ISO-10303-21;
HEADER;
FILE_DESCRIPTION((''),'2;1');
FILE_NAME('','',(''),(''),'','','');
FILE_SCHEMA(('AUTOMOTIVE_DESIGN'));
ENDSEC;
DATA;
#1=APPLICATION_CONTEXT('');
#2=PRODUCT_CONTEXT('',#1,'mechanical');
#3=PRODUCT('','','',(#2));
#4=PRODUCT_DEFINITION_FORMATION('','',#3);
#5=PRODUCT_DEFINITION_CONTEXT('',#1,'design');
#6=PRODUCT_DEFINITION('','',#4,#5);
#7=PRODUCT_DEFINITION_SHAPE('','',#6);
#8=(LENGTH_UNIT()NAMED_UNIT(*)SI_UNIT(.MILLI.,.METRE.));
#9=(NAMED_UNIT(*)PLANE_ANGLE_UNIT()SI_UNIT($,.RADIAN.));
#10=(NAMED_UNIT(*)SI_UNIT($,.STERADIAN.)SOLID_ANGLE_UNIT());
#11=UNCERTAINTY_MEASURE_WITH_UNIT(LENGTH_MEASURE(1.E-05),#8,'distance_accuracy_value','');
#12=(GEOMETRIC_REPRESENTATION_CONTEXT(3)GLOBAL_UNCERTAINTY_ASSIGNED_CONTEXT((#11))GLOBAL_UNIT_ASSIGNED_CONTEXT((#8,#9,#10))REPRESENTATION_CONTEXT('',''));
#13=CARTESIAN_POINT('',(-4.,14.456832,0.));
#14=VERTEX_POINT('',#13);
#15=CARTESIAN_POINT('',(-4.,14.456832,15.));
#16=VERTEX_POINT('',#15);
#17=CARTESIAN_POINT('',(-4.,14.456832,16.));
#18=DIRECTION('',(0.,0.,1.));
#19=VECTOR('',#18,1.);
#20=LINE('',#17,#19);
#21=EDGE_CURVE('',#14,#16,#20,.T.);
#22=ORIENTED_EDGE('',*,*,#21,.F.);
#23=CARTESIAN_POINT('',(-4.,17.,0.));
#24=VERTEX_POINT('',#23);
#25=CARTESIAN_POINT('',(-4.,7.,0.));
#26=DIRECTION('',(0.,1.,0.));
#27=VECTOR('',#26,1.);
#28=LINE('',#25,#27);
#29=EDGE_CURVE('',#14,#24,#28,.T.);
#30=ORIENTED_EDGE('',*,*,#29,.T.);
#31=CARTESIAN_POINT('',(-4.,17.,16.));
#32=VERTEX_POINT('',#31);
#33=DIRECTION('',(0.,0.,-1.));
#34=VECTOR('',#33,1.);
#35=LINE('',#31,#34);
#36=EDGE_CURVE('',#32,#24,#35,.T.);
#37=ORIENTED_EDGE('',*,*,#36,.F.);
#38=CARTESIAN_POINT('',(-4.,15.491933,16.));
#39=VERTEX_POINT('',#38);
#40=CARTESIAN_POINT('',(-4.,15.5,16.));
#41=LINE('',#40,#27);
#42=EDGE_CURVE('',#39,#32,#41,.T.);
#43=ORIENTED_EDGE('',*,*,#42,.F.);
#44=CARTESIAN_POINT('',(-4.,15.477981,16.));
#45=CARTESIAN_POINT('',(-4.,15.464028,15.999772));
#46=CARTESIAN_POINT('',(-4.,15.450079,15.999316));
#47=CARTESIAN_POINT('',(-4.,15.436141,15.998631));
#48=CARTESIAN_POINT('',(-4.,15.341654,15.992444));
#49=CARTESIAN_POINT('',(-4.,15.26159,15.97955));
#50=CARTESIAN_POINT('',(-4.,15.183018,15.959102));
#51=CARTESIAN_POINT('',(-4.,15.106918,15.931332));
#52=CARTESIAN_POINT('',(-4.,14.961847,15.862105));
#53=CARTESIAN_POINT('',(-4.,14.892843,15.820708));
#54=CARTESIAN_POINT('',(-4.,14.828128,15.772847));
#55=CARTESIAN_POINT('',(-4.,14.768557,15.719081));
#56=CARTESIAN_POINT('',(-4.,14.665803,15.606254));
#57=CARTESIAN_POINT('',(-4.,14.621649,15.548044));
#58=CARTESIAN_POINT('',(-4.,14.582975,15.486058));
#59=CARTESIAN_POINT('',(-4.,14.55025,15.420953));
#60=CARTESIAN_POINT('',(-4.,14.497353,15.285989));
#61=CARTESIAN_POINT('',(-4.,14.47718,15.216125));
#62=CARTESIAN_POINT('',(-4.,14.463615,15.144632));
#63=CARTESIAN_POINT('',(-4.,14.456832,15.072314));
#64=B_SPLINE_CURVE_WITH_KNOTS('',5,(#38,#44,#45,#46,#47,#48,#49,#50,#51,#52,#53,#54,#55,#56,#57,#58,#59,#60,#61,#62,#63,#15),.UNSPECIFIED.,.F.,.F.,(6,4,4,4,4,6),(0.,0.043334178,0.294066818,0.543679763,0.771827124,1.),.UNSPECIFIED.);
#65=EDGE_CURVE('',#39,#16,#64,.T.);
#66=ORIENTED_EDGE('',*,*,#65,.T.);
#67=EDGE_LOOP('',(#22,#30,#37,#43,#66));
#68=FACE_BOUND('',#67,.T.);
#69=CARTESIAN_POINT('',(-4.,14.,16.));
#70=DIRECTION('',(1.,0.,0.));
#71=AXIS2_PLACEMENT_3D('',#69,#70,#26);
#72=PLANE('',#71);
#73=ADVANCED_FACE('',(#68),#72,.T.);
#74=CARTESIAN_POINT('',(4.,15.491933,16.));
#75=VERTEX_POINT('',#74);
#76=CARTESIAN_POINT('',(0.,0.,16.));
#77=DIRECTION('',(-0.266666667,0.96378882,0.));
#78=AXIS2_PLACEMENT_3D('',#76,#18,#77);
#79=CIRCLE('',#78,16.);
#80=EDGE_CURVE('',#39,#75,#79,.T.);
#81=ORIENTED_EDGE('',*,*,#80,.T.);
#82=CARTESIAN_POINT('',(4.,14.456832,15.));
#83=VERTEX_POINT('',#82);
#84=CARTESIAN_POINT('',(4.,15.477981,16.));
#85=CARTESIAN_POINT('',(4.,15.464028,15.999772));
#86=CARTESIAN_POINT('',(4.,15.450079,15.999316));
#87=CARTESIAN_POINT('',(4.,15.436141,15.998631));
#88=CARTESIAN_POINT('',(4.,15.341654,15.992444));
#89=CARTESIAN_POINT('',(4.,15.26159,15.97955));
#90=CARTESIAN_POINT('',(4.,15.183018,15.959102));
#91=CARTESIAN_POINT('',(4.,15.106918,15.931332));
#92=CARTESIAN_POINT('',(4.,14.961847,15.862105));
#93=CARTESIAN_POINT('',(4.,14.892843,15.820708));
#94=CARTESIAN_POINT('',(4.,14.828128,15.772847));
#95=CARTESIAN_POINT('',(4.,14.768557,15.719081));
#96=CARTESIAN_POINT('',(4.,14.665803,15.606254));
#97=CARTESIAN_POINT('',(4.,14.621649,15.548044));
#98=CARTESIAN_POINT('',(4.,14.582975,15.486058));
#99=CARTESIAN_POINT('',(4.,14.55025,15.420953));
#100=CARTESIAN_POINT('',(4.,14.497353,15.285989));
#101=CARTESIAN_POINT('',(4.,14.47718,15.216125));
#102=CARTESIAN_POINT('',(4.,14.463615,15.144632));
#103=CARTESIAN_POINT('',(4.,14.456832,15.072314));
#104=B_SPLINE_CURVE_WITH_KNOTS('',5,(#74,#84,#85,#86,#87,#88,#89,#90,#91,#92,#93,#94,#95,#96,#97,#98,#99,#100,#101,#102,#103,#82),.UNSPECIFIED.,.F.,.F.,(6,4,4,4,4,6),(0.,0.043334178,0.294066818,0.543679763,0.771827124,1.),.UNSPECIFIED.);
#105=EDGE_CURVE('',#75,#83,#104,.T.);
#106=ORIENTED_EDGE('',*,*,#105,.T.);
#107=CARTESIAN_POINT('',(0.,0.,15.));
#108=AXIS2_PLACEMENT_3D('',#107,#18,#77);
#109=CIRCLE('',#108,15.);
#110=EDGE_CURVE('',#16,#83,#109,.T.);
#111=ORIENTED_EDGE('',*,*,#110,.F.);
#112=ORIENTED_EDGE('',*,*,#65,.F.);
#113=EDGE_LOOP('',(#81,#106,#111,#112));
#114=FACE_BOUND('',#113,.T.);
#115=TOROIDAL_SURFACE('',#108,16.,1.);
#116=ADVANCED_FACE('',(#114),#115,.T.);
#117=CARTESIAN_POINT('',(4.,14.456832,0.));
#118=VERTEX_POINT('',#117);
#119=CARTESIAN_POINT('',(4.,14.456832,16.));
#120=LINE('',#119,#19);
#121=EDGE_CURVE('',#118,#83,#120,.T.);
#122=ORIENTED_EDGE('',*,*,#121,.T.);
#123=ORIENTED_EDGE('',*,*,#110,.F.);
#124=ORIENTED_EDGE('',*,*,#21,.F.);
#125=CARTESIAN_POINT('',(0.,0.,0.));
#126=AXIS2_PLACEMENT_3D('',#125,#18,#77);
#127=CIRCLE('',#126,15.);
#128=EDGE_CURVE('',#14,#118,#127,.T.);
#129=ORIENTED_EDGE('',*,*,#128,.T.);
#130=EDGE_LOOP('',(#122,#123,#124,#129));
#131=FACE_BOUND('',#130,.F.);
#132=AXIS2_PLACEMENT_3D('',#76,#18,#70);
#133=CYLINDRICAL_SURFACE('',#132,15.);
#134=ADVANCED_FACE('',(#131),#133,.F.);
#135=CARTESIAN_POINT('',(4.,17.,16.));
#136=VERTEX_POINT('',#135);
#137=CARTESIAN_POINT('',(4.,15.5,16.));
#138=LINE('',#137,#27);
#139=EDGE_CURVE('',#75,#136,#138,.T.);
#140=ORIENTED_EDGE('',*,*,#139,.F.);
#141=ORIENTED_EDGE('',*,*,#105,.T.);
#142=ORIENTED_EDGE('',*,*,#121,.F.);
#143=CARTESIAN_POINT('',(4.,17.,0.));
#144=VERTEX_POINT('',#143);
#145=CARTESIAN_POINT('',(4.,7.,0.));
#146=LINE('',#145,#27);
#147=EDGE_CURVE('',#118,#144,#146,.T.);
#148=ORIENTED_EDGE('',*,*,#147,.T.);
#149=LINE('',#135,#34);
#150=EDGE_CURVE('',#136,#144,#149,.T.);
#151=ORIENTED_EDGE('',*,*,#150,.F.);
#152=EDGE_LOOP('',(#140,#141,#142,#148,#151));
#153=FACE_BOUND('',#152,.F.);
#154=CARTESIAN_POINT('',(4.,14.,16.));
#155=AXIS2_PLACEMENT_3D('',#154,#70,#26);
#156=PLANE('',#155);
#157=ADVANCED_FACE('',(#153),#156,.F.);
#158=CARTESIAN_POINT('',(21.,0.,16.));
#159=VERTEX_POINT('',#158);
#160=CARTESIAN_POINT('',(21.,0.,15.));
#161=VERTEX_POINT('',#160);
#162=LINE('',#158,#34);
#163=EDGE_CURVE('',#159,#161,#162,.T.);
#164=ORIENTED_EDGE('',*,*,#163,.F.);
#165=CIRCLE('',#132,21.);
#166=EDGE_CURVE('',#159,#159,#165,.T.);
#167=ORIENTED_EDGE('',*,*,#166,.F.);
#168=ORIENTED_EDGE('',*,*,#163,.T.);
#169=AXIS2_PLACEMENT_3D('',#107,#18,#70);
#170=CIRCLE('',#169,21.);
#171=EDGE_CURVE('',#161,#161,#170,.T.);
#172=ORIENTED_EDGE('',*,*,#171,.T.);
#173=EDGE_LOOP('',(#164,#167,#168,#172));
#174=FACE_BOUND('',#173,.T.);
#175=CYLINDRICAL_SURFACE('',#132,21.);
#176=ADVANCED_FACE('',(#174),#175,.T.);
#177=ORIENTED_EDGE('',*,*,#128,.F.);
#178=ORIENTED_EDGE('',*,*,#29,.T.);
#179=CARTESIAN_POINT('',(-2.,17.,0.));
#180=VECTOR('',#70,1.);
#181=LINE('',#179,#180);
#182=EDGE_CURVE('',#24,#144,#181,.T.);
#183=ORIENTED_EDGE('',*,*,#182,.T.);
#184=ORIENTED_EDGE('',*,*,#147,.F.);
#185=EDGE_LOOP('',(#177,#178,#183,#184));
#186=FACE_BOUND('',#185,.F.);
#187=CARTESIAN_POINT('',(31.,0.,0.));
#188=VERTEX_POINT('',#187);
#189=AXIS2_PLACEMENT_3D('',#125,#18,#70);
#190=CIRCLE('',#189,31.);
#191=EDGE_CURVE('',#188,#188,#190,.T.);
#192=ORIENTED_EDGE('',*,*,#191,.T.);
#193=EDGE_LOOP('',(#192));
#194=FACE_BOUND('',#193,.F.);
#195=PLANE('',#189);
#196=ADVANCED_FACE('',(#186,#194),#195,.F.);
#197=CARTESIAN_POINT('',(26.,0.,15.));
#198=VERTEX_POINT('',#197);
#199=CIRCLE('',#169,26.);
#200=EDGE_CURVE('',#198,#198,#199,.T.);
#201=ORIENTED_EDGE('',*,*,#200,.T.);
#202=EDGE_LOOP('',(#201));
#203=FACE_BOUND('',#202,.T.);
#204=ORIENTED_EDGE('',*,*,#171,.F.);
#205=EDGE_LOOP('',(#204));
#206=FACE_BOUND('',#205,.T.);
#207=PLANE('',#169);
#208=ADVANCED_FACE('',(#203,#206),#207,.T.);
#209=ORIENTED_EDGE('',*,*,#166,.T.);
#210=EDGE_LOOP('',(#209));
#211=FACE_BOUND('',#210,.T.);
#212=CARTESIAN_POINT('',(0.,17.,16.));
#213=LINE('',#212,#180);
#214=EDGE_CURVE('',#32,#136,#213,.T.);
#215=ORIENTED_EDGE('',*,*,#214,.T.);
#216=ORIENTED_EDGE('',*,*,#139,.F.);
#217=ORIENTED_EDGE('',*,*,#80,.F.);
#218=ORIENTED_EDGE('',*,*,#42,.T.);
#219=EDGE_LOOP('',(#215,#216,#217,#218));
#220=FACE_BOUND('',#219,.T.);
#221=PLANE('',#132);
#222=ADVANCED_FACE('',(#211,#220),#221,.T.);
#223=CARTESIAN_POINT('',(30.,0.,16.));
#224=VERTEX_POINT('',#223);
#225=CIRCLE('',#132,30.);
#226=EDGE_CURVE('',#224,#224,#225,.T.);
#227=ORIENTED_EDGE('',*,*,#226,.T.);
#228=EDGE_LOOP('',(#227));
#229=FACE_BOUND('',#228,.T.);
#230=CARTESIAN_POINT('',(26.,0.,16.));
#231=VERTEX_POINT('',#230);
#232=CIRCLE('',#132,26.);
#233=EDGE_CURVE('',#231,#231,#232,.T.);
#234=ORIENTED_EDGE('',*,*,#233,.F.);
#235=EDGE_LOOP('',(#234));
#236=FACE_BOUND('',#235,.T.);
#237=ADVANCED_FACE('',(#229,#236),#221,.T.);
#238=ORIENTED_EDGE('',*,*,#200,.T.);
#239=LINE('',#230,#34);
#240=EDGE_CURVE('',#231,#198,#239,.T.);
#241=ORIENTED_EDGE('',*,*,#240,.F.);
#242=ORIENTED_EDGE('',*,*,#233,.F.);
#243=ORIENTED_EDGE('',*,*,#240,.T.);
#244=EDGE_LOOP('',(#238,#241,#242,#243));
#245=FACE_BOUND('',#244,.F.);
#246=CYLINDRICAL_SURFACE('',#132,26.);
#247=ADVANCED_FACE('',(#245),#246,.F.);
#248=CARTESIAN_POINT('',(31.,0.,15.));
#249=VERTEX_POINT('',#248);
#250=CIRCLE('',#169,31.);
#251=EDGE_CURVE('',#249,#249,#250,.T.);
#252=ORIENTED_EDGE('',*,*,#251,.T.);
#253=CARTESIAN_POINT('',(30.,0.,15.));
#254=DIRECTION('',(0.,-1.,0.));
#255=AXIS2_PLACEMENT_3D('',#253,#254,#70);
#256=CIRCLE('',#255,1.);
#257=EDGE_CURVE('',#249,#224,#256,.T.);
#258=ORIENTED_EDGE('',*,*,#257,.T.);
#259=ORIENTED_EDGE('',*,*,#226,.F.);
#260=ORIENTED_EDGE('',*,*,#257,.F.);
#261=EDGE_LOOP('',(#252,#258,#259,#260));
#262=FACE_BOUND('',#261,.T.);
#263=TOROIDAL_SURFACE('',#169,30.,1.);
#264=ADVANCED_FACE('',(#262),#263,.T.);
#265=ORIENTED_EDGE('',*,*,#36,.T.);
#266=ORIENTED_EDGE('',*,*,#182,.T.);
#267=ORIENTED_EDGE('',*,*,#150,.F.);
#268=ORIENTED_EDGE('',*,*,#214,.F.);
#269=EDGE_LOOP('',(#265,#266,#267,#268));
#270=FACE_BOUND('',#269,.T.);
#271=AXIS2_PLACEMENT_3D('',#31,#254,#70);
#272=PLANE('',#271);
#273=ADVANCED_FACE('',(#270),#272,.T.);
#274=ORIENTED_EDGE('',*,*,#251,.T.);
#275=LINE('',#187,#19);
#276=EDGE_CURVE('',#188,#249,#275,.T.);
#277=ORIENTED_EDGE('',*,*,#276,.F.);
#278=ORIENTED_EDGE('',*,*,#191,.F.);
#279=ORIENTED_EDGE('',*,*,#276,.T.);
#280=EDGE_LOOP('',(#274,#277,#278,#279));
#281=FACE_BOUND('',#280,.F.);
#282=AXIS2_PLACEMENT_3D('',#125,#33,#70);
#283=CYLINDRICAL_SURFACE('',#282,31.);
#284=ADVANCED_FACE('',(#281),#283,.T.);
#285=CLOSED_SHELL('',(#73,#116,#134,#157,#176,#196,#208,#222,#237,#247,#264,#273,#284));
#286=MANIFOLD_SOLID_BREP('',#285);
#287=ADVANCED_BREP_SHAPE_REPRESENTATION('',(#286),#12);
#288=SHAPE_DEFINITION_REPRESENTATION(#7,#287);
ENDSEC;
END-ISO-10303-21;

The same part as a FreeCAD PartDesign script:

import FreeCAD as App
import Part
import Sketcher
from FreeCAD import Vector
Q = App.Units.Quantity


def edges_at(feature, points):
    """Names of the edges that pass closest to the given points."""
    edges = feature.Shape.Edges
    near = lambda p: min(range(len(edges)), key=lambda i: edges[i].distToShape(Part.Vertex(*p))[0])
    return sorted({f"Edge{near(p) + 1}" for p in points})

doc = App.newDocument("Part")
body = doc.addObject("PartDesign::Body", "Body")

sketch1 = body.newObject("Sketcher::SketchObject", "Sketch")
sketch1.AttachmentSupport = (doc.getObject("XY_Plane"), [""])
sketch1.MapMode = "FlatFace"
sketch1.addGeometry(Part.Circle(Vector(0, 0, 0), Vector(0, 0, 1), 31), False)
sketch1.addConstraint(Sketcher.Constraint("Coincident", 0, 3, -1, 1))
sketch1.addConstraint(Sketcher.Constraint("Diameter", 0, Q("62 mm")))
pad1 = body.newObject("PartDesign::Pad", "Pad")
pad1.Profile = sketch1
pad1.Length = 16

sketch2 = body.newObject("Sketcher::SketchObject", "Sketch001")
sketch2.AttachmentSupport = (doc.getObject("XY_Plane"), [""])
sketch2.MapMode = "FlatFace"
sketch2.AttachmentOffset = App.Placement(Vector(0, 0, 16), App.Rotation())
sketch2.addGeometry(Part.Circle(Vector(0, 0, 0), Vector(0, 0, 1), 26), False)
sketch2.addGeometry(Part.Circle(Vector(0, 0, 0), Vector(0, 0, 1), 21), False)
sketch2.addConstraint(Sketcher.Constraint("Coincident", 0, 3, -1, 1))
sketch2.addConstraint(Sketcher.Constraint("Coincident", 1, 3, -1, 1))
sketch2.addConstraint(Sketcher.Constraint("Diameter", 0, Q("52 mm")))
sketch2.addConstraint(Sketcher.Constraint("Diameter", 1, Q("42 mm")))
pocket1 = body.newObject("PartDesign::Pocket", "Pocket")
pocket1.Profile = sketch2
pocket1.Length = 1

sketch3 = body.newObject("Sketcher::SketchObject", "Sketch002")
sketch3.AttachmentSupport = (doc.getObject("XY_Plane"), [""])
sketch3.MapMode = "FlatFace"
sketch3.AttachmentOffset = App.Placement(Vector(0, 0, 16), App.Rotation())
sketch3.addGeometry(Part.Circle(Vector(0, 0, 0), Vector(0, 0, 1), 15), False)
sketch3.addConstraint(Sketcher.Constraint("Coincident", 0, 3, -1, 1))
sketch3.addConstraint(Sketcher.Constraint("Diameter", 0, Q("30 mm")))
pocket2 = body.newObject("PartDesign::Pocket", "Pocket001")
pocket2.Profile = sketch3
pocket2.Length = 25

sketch4 = body.newObject("Sketcher::SketchObject", "Sketch003")
sketch4.AttachmentSupport = (doc.getObject("XY_Plane"), [""])
sketch4.MapMode = "FlatFace"
sketch4.AttachmentOffset = App.Placement(Vector(0, 0, 16), App.Rotation())
sketch4.addGeometry(Part.LineSegment(Vector(-4, 17, 0), Vector(-4, 14, 0)), False)
sketch4.addGeometry(Part.LineSegment(Vector(-4, 14, 0), Vector(4, 14, 0)), False)
sketch4.addGeometry(Part.LineSegment(Vector(4, 14, 0), Vector(4, 17, 0)), False)
sketch4.addGeometry(Part.LineSegment(Vector(4, 17, 0), Vector(-4, 17, 0)), False)
sketch4.addConstraint(Sketcher.Constraint("Coincident", 0, 2, 1, 1))
sketch4.addConstraint(Sketcher.Constraint("Coincident", 1, 2, 2, 1))
sketch4.addConstraint(Sketcher.Constraint("Coincident", 2, 2, 3, 1))
sketch4.addConstraint(Sketcher.Constraint("Coincident", 3, 2, 0, 1))
sketch4.addConstraint(Sketcher.Constraint("Vertical", 0))
sketch4.addConstraint(Sketcher.Constraint("Horizontal", 1))
sketch4.addConstraint(Sketcher.Constraint("Vertical", 2))
sketch4.addConstraint(Sketcher.Constraint("Horizontal", 3))
sketch4.addConstraint(Sketcher.Constraint("DistanceX", 1, 1, 1, 2, Q("8 mm")))
sketch4.addConstraint(Sketcher.Constraint("DistanceY", 0, 2, 0, 1, Q("3 mm")))
sketch4.addConstraint(Sketcher.Constraint("DistanceX", 0, 2, -1, 1, Q("4 mm")))
sketch4.addConstraint(Sketcher.Constraint("DistanceY", -1, 1, 0, 2, Q("14 mm")))
pocket3 = body.newObject("PartDesign::Pocket", "Pocket002")
pocket3.Profile = sketch4
pocket3.Length = 25
doc.recompute()

fillet = body.newObject("PartDesign::Fillet", "Fillet")
fillet.Base = (pocket3, edges_at(pocket3, [(0, -15, 16), (-31, 0, 16)]))
fillet.Radius = 1

doc.recompute()
